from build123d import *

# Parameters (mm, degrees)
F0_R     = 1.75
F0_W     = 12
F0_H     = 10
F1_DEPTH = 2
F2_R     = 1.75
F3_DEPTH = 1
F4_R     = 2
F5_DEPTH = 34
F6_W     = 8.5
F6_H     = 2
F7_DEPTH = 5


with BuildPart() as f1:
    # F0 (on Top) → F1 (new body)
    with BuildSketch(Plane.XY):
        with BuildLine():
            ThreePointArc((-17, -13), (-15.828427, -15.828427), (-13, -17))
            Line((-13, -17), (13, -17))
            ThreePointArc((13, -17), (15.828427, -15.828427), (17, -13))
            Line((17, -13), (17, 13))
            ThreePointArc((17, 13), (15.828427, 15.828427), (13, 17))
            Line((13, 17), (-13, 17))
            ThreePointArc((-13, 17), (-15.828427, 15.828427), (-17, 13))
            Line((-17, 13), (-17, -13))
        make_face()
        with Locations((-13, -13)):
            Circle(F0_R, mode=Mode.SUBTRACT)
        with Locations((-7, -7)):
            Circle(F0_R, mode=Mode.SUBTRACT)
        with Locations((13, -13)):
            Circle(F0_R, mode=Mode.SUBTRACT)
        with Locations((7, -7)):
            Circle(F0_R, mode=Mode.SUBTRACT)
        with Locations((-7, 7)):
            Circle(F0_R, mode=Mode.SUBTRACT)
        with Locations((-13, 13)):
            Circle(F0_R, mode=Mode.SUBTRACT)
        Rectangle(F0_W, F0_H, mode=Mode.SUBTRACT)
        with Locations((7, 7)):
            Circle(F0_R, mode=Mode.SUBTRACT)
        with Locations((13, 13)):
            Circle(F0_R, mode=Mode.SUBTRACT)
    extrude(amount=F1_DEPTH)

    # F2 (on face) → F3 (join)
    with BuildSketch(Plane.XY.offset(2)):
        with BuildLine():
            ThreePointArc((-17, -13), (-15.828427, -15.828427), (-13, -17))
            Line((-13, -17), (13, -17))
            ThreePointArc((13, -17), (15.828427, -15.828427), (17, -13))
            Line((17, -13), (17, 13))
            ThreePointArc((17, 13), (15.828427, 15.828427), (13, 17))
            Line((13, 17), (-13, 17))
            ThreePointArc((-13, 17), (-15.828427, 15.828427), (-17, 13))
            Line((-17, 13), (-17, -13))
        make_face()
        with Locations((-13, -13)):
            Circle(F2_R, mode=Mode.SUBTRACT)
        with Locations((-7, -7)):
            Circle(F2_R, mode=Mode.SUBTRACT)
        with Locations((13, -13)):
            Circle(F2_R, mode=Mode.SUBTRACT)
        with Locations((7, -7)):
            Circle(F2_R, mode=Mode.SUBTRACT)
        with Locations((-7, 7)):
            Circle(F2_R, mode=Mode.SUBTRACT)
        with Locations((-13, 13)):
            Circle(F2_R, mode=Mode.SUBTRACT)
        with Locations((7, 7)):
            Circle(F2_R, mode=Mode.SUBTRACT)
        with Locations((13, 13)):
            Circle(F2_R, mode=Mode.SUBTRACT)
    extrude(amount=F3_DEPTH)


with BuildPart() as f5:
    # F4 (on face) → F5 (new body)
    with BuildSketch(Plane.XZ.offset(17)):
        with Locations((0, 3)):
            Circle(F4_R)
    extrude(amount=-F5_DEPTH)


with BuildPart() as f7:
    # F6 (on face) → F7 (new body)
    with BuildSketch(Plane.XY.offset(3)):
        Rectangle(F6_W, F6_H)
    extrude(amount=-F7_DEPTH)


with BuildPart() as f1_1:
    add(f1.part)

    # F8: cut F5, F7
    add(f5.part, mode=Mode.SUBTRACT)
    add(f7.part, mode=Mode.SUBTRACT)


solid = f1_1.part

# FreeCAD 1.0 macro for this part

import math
import FreeCAD as App
import Part
import Sketcher

V = App.Vector

doc = App.newDocument("Part")
params = doc.addObject("Spreadsheet::Sheet", "Params")
for row, (alias, value) in enumerate([
    ("sketch1_radius", "4 mm"),
    ("sketch1_diameter", "3.5 mm"),
    ("sketch1_width", "26 mm"),
    ("sketch1_width2", "12 mm"),
    ("sketch1_height", "10 mm"),
    ("pad1_length", "2 mm"),
    ("sketch2_radius", "4 mm"),
    ("sketch2_diameter", "3.5 mm"),
    ("sketch2_width", "26 mm"),
    ("pad2_length", "1 mm"),
    ("sketch3_diameter", "4 mm"),
    ("pad3_length", "34 mm"),
    ("sketch4_height", "2 mm"),
    ("sketch4_width", "8.5 mm"),
    ("pad4_length", "5 mm"),
], start=1):
    params.set(f"A{row}", alias)
    params.set(f"B{row}", "=" + value)
    params.setAlias(f"B{row}", alias)

body = doc.addObject("PartDesign::Body", "Body")

# Sketch on XY plane
sketch1 = body.newObject("Sketcher::SketchObject", "Sketch")
sketch1.AttachmentSupport = (doc.getObject("XY_Plane"), [""])
sketch1.MapMode = "FlatFace"
sketch1.addGeometry([
    Part.ArcOfCircle(Part.Circle(V(-13, -13, 0), V(0, 0, 1), 4), math.radians(-180), math.radians(-90)),  # 0
    Part.LineSegment(V(-13, -17, 0), V(13, -17, 0)),  # 1
    Part.ArcOfCircle(Part.Circle(V(13, -13, 0), V(0, 0, 1), 4), math.radians(-90), math.radians(0)),  # 2
    Part.LineSegment(V(17, -13, 0), V(17, 13, 0)),  # 3
    Part.ArcOfCircle(Part.Circle(V(13, 13, 0), V(0, 0, 1), 4), math.radians(0), math.radians(90)),  # 4
    Part.LineSegment(V(13, 17, 0), V(-13, 17, 0)),  # 5
    Part.ArcOfCircle(Part.Circle(V(-13, 13, 0), V(0, 0, 1), 4), math.radians(90), math.radians(180)),  # 6
    Part.LineSegment(V(-17, 13, 0), V(-17, -13, 0)),  # 7
    Part.Circle(V(-13, -13, 0), V(0, 0, 1), 1.8),  # 8
    Part.Circle(V(-7, -7, 0), V(0, 0, 1), 1.8),  # 9
    Part.Circle(V(13, -13, 0), V(0, 0, 1), 1.8),  # 10
    Part.Circle(V(7, -7, 0), V(0, 0, 1), 1.8),  # 11
    Part.Circle(V(-7, 7, 0), V(0, 0, 1), 1.8),  # 12
    Part.Circle(V(-13, 13, 0), V(0, 0, 1), 1.8),  # 13
    Part.LineSegment(V(6, -5, 0), V(-6, -5, 0)),  # 14
    Part.LineSegment(V(-6, -5, 0), V(-6, 5, 0)),  # 15
    Part.LineSegment(V(-6, 5, 0), V(6, 5, 0)),  # 16
    Part.LineSegment(V(6, 5, 0), V(6, -5, 0)),  # 17
    Part.Circle(V(7, 7, 0), V(0, 0, 1), 1.8),  # 18
    Part.Circle(V(13, 13, 0), V(0, 0, 1), 1.8),  # 19
], False)
sketch1.addConstraint([
    Sketcher.Constraint("Tangent", 0, 2, 1, 1),
    Sketcher.Constraint("Tangent", 1, 2, 2, 1),
    Sketcher.Constraint("Tangent", 2, 2, 3, 1),
    Sketcher.Constraint("Tangent", 3, 2, 4, 1),
    Sketcher.Constraint("Tangent", 4, 2, 5, 1),
    Sketcher.Constraint("Tangent", 5, 2, 6, 1),
    Sketcher.Constraint("Tangent", 6, 2, 7, 1),
    Sketcher.Constraint("Tangent", 7, 2, 0, 1),
    Sketcher.Constraint("Coincident", 14, 2, 15, 1),
    Sketcher.Constraint("Coincident", 15, 2, 16, 1),
    Sketcher.Constraint("Coincident", 16, 2, 17, 1),
    Sketcher.Constraint("Coincident", 17, 2, 14, 1),
    Sketcher.Constraint("Horizontal", 1),
    Sketcher.Constraint("Vertical", 3),
    Sketcher.Constraint("Horizontal", 5),
    Sketcher.Constraint("Vertical", 7),
    Sketcher.Constraint("Horizontal", 14),
    Sketcher.Constraint("Vertical", 15),
    Sketcher.Constraint("Horizontal", 16),
    Sketcher.Constraint("Vertical", 17),
    Sketcher.Constraint("Coincident", 8, 3, 0, 3),
    Sketcher.Constraint("Coincident", 10, 3, 2, 3),
    Sketcher.Constraint("Coincident", 13, 3, 6, 3),
    Sketcher.Constraint("Coincident", 19, 3, 4, 3),
    Sketcher.Constraint("Equal", 0, 2),
    Sketcher.Constraint("Equal", 2, 4),
    Sketcher.Constraint("Equal", 4, 6),
    Sketcher.Constraint("Equal", 8, 9),
    Sketcher.Constraint("Equal", 9, 10),
    Sketcher.Constraint("Equal", 10, 11),
    Sketcher.Constraint("Equal", 11, 12),
    Sketcher.Constraint("Equal", 12, 13),
    Sketcher.Constraint("Equal", 13, 18),
    Sketcher.Constraint("Equal", 18, 19),
    Sketcher.Constraint("Symmetric", 0, 3, 4, 3, -1, 1),
    Sketcher.Constraint("Symmetric", 11, 3, 12, 3, -1, 1),
    Sketcher.Constraint("Symmetric", 9, 3, 18, 3, -1, 1),
    Sketcher.Constraint("Symmetric", 14, 2, 16, 2, -1, 1),
    Sketcher.Constraint("Symmetric", 9, 3, 11, 3, -2),
    Sketcher.Constraint("Equal", 5, 3),
    Sketcher.Constraint("Radius", 0, 4.0),
    Sketcher.Constraint("Diameter", 8, 3.5),
    Sketcher.Constraint("DistanceX", 1, 1, 1, 2, 26.0),
    Sketcher.Constraint("DistanceX", 14, 2, 14, 1, 12.0),
    Sketcher.Constraint("DistanceY", 15, 1, 15, 2, 10.0),
    Sketcher.Constraint("DistanceX", 9, 3, -1, 1, 7.0),
    Sketcher.Constraint("DistanceY", 9, 3, -1, 1, 7.0),
])
sketch1.setExpression("Constraints[40]", "Params.sketch1_radius")
sketch1.setExpression("Constraints[41]", "Params.sketch1_diameter")
sketch1.setExpression("Constraints[42]", "Params.sketch1_width")
sketch1.setExpression("Constraints[43]", "Params.sketch1_width2")
sketch1.setExpression("Constraints[44]", "Params.sketch1_height")
pad1 = body.newObject("PartDesign::Pad", "Pad")
pad1.Profile = sketch1
pad1.setExpression("Length", "Params.pad1_length")

# Sketch on XY plane
sketch2 = body.newObject("Sketcher::SketchObject", "Sketch001")
sketch2.AttachmentSupport = (doc.getObject("XY_Plane"), [""])
sketch2.MapMode = "FlatFace"
sketch2.AttachmentOffset = App.Placement(V(0, 0, 2), App.Rotation())
sketch2.addGeometry([
    Part.ArcOfCircle(Part.Circle(V(-13, -13, 0), V(0, 0, 1), 4), math.radians(-180), math.radians(-90)),  # 0
    Part.LineSegment(V(-13, -17, 0), V(13, -17, 0)),  # 1
    Part.ArcOfCircle(Part.Circle(V(13, -13, 0), V(0, 0, 1), 4), math.radians(-90), math.radians(0)),  # 2
    Part.LineSegment(V(17, -13, 0), V(17, 13, 0)),  # 3
    Part.ArcOfCircle(Part.Circle(V(13, 13, 0), V(0, 0, 1), 4), math.radians(0), math.radians(90)),  # 4
    Part.LineSegment(V(13, 17, 0), V(-13, 17, 0)),  # 5
    Part.ArcOfCircle(Part.Circle(V(-13, 13, 0), V(0, 0, 1), 4), math.radians(90), math.radians(180)),  # 6
    Part.LineSegment(V(-17, 13, 0), V(-17, -13, 0)),  # 7
    Part.Circle(V(-13, -13, 0), V(0, 0, 1), 1.8),  # 8
    Part.Circle(V(-7, -7, 0), V(0, 0, 1), 1.8),  # 9
    Part.Circle(V(13, -13, 0), V(0, 0, 1), 1.8),  # 10
    Part.Circle(V(7, -7, 0), V(0, 0, 1), 1.8),  # 11
    Part.Circle(V(-7, 7, 0), V(0, 0, 1), 1.8),  # 12
    Part.Circle(V(-13, 13, 0), V(0, 0, 1), 1.8),  # 13
    Part.Circle(V(7, 7, 0), V(0, 0, 1), 1.8),  # 14
    Part.Circle(V(13, 13, 0), V(0, 0, 1), 1.8),  # 15
], False)
sketch2.addConstraint([
    Sketcher.Constraint("Tangent", 0, 2, 1, 1),
    Sketcher.Constraint("Tangent", 1, 2, 2, 1),
    Sketcher.Constraint("Tangent", 2, 2, 3, 1),
    Sketcher.Constraint("Tangent", 3, 2, 4, 1),
    Sketcher.Constraint("Tangent", 4, 2, 5, 1),
    Sketcher.Constraint("Tangent", 5, 2, 6, 1),
    Sketcher.Constraint("Tangent", 6, 2, 7, 1),
    Sketcher.Constraint("Tangent", 7, 2, 0, 1),
    Sketcher.Constraint("Horizontal", 1),
    Sketcher.Constraint("Vertical", 3),
    Sketcher.Constraint("Horizontal", 5),
    Sketcher.Constraint("Vertical", 7),
    Sketcher.Constraint("Coincident", 8, 3, 0, 3),
    Sketcher.Constraint("Coincident", 10, 3, 2, 3),
    Sketcher.Constraint("Coincident", 13, 3, 6, 3),
    Sketcher.Constraint("Coincident", 15, 3, 4, 3),
    Sketcher.Constraint("Equal", 0, 2),
    Sketcher.Constraint("Equal", 2, 4),
    Sketcher.Constraint("Equal", 4, 6),
    Sketcher.Constraint("Equal", 8, 9),
    Sketcher.Constraint("Equal", 9, 10),
    Sketcher.Constraint("Equal", 10, 11),
    Sketcher.Constraint("Equal", 11, 12),
    Sketcher.Constraint("Equal", 12, 13),
    Sketcher.Constraint("Equal", 13, 14),
    Sketcher.Constraint("Equal", 14, 15),
    Sketcher.Constraint("Symmetric", 0, 3, 4, 3, -1, 1),
    Sketcher.Constraint("Symmetric", 11, 3, 12, 3, -1, 1),
    Sketcher.Constraint("Symmetric", 9, 3, 14, 3, -1, 1),
    Sketcher.Constraint("Symmetric", 9, 3, 11, 3, -2),
    Sketcher.Constraint("Equal", 5, 3),
    Sketcher.Constraint("Radius", 0, 4.0),
    Sketcher.Constraint("Diameter", 8, 3.5),
    Sketcher.Constraint("DistanceX", 1, 1, 1, 2, 26.0),
    Sketcher.Constraint("DistanceX", 9, 3, -1, 1, 7.0),
    Sketcher.Constraint("DistanceY", 9, 3, -1, 1, 7.0),
])
sketch2.setExpression("Constraints[31]", "Params.sketch2_radius")
sketch2.setExpression("Constraints[32]", "Params.sketch2_diameter")
sketch2.setExpression("Constraints[33]", "Params.sketch2_width")
pad2 = body.newObject("PartDesign::Pad", "Pad001")
pad2.Profile = sketch2
pad2.setExpression("Length", "Params.pad2_length")
body2 = doc.addObject("PartDesign::Body", "Body001")

# Sketch on XZ plane
sketch3 = body2.newObject("Sketcher::SketchObject", "Sketch002")
sketch3.AttachmentSupport = (doc.getObject("XZ_Plane001"), [""])
sketch3.MapMode = "FlatFace"
sketch3.AttachmentOffset = App.Placement(V(0, 0, 17), App.Rotation())
sketch3.addGeometry(Part.Circle(V(0, 3, 0), V(0, 0, 1), 2), False)
sketch3.addConstraint([
    Sketcher.Constraint("PointOnObject", 0, 3, -2),
    Sketcher.Constraint("Diameter", 0, 4.0),
    Sketcher.Constraint("DistanceY", -1, 1, 0, 3, 3.0),
])
sketch3.setExpression("Constraints[1]", "Params.sketch3_diameter")
pad3 = body2.newObject("PartDesign::Pad", "Pad002")
pad3.Profile = sketch3
pad3.setExpression("Length", "Params.pad3_length")
pad3.Reversed = True
body3 = doc.addObject("PartDesign::Body", "Body002")

# Sketch on XY plane
sketch4 = body3.newObject("Sketcher::SketchObject", "Sketch003")
sketch4.AttachmentSupport = (doc.getObject("XY_Plane002"), [""])
sketch4.MapMode = "FlatFace"
sketch4.AttachmentOffset = App.Placement(V(0, 0, 3), App.Rotation())
sketch4.addGeometry([
    Part.LineSegment(V(-4.2, 1, 0), V(-4.2, -1, 0)),
    Part.LineSegment(V(-4.2, -1, 0), V(4.2, -1, 0)),
    Part.LineSegment(V(4.2, -1, 0), V(4.2, 1, 0)),
    Part.LineSegment(V(4.2, 1, 0), V(-4.2, 1, 0)),
], False)
sketch4.addConstraint([
    Sketcher.Constraint("Coincident", 0, 2, 1, 1),
    Sketcher.Constraint("Coincident", 1, 2, 2, 1),
    Sketcher.Constraint("Coincident", 2, 2, 3, 1),
    Sketcher.Constraint("Coincident", 3, 2, 0, 1),
    Sketcher.Constraint("Vertical", 0),
    Sketcher.Constraint("Horizontal", 1),
    Sketcher.Constraint("Vertical", 2),
    Sketcher.Constraint("Horizontal", 3),
    Sketcher.Constraint("Symmetric", 0, 2, 2, 2, -1, 1),
    Sketcher.Constraint("DistanceY", 0, 2, 0, 1, 2.0),
    Sketcher.Constraint("DistanceX", 1, 1, 1, 2, 8.5),
])
sketch4.setExpression("Constraints[9]", "Params.sketch4_height")
sketch4.setExpression("Constraints[10]", "Params.sketch4_width")
pad4 = body3.newObject("PartDesign::Pad", "Pad003")
pad4.Profile = sketch4
pad4.setExpression("Length", "Params.pad4_length")
pad4.Reversed = True
doc.recompute()

boolean = body.newObject("PartDesign::Boolean", "Boolean")
boolean.Type = "Cut"
boolean.addObjects([body2])
doc.recompute()

boolean2 = body.newObject("PartDesign::Boolean", "Boolean001")
boolean2.Type = "Cut"
boolean2.addObjects([body3])

doc.recompute()
